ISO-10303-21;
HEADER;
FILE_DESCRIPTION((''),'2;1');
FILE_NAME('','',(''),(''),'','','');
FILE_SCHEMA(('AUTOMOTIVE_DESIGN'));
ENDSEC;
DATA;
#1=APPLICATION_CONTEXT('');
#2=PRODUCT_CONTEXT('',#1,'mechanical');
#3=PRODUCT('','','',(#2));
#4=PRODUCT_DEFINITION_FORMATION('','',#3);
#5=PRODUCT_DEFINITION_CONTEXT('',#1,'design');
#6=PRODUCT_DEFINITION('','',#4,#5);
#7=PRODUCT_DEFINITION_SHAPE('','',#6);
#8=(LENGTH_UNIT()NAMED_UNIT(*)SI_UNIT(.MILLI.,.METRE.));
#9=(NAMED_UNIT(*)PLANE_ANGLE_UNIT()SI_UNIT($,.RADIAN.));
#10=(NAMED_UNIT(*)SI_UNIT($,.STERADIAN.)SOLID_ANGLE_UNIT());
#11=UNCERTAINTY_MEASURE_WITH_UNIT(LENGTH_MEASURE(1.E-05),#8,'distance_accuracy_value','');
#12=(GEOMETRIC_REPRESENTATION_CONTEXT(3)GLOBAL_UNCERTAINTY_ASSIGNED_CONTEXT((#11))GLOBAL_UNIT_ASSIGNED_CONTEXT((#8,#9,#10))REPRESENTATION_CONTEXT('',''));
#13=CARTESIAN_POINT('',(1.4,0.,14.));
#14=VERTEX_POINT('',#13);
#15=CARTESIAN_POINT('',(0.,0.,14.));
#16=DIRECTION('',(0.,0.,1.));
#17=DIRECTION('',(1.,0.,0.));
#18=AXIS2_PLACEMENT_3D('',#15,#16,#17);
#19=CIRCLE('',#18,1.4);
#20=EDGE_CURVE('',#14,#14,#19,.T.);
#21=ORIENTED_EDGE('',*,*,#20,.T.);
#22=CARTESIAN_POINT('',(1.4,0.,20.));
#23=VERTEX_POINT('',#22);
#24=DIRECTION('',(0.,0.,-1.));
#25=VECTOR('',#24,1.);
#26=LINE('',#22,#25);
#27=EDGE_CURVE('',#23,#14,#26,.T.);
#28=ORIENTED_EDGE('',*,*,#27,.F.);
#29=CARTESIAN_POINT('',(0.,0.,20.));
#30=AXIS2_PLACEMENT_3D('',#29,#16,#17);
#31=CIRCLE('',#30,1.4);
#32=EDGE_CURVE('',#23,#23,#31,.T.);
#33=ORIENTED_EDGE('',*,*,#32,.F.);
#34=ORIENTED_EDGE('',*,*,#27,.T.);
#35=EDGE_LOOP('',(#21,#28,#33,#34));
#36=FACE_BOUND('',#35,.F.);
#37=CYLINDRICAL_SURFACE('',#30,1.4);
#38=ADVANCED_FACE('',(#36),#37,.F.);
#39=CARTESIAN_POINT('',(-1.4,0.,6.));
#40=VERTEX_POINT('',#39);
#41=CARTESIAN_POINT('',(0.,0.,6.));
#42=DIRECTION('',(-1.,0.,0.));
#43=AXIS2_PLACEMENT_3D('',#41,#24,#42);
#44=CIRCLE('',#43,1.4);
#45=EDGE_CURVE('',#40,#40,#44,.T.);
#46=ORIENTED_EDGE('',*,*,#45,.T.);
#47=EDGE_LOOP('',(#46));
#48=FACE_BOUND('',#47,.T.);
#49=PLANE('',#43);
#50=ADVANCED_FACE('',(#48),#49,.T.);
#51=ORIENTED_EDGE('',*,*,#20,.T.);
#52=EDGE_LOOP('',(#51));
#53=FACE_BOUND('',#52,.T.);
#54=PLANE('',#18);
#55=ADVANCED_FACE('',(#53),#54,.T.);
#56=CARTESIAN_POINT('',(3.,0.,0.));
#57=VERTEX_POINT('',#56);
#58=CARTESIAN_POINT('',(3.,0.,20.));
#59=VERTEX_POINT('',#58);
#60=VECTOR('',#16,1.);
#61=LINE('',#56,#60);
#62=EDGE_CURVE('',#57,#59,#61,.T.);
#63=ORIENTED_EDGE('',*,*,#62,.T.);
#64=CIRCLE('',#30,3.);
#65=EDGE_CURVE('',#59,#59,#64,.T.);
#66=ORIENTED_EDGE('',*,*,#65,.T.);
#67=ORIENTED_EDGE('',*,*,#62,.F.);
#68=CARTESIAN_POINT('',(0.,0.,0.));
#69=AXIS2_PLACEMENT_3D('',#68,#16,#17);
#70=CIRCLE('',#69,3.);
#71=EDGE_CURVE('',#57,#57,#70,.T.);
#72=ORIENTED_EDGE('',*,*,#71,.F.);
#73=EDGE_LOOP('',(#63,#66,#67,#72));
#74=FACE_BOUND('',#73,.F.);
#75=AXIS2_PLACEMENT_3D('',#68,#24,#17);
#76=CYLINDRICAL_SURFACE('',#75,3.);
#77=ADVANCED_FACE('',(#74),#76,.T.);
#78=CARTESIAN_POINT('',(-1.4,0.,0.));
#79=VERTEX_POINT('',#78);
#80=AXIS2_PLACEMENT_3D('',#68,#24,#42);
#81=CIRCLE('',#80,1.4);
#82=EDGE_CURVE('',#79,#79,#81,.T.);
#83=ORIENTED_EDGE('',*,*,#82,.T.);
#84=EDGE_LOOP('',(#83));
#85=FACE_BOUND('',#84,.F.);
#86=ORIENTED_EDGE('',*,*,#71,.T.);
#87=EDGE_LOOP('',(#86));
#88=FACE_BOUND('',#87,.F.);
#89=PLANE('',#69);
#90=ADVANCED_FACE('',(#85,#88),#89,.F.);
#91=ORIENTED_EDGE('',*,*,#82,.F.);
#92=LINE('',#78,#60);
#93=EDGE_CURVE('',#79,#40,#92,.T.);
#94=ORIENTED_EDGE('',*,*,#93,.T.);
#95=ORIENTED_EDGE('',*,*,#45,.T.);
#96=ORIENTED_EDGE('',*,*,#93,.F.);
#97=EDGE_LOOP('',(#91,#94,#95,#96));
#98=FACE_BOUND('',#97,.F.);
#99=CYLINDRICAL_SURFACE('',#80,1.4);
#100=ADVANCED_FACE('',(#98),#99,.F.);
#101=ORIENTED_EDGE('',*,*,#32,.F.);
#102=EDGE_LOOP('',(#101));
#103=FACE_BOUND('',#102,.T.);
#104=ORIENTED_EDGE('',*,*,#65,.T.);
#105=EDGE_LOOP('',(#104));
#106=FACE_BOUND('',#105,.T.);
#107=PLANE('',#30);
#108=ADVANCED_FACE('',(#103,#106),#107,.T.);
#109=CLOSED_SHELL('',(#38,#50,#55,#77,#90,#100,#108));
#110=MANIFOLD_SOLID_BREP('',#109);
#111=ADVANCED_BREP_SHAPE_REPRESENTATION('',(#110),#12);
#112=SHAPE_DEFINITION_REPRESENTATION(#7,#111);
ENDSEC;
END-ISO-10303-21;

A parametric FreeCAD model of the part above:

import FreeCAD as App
import Part
import Sketcher
from FreeCAD import Vector

doc = App.newDocument("Part")
body = doc.addObject("PartDesign::Body", "Body")

# Sketch on XY plane
sketch1 = body.newObject("Sketcher::SketchObject", "Sketch")
sketch1.AttachmentSupport = (doc.getObject("XY_Plane"), [""])
sketch1.MapMode = "FlatFace"
sketch1.addGeometry(Part.Circle(Vector(0, 0, 0), Vector(0, 0, 1), 3), False)
sketch1.addConstraint(Sketcher.Constraint("Coincident", 0, 3, -1, 1))
sketch1.addConstraint(Sketcher.Constraint("Diameter", 0, 6.0))
pad1 = body.newObject("PartDesign::Pad", "Pad")
pad1.Profile = sketch1
pad1.Length = 20

# Sketch on XY plane
sketch2 = body.newObject("Sketcher::SketchObject", "Sketch001")
sketch2.AttachmentSupport = (doc.getObject("XY_Plane"), [""])
sketch2.MapMode = "FlatFace"
sketch2.AttachmentOffset = App.Placement(Vector(0, 0, 20), App.Rotation())
sketch2.addGeometry(Part.Circle(Vector(0, 0, 0), Vector(0, 0, 1), 1.4), False)
sketch2.addConstraint(Sketcher.Constraint("Coincident", 0, 3, -1, 1))
sketch2.addConstraint(Sketcher.Constraint("Diameter", 0, 2.8))
pocket1 = body.newObject("PartDesign::Pocket", "Pocket")
pocket1.Profile = sketch2
pocket1.Length = 6

# Sketch on XY plane
sketch3 = body.newObject("Sketcher::SketchObject", "Sketch002")
sketch3.AttachmentSupport = (doc.getObject("XY_Plane"), [""])
sketch3.MapMode = "FlatFace"
sketch3.addGeometry(Part.Circle(Vector(0, 0, 0), Vector(0, 0, 1), 1.4), False)
sketch3.addConstraint(Sketcher.Constraint("Coincident", 0, 3, -1, 1))
sketch3.addConstraint(Sketcher.Constraint("Diameter", 0, 2.8))
pocket2 = body.newObject("PartDesign::Pocket", "Pocket001")
pocket2.Profile = sketch3
pocket2.Length = 6
pocket2.Reversed = True

doc.recompute()
